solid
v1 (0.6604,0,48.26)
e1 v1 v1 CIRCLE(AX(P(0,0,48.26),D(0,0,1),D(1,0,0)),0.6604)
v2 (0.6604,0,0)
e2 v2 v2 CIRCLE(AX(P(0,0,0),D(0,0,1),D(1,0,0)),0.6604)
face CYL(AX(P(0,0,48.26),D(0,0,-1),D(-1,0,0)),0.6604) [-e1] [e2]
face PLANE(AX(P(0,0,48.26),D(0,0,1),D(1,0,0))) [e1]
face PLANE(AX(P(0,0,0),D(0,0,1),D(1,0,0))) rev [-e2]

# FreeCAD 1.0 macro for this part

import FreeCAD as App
import Part
import Sketcher

V = App.Vector
Q = App.Units.Quantity

doc = App.newDocument("Part")
params = doc.addObject("Spreadsheet::Sheet", "Params")
for row, (alias, value) in enumerate([
    ("sketch1_diameter", "0.052 in"),
    ("pad1_length", "1.9 in"),
], start=1):
    params.set(f"A{row}", alias)
    params.set(f"B{row}", "=" + value)
    params.setAlias(f"B{row}", alias)

body = doc.addObject("PartDesign::Body", "Body")

sketch1 = doc.addObject("Sketcher::SketchObject", "Sketch")
body.addObject(sketch1)
sketch1.AttachmentSupport = (doc.XY_Plane, [""])
sketch1.MapMode = "FlatFace"
sketch1.addGeometry(Part.Circle(V(0, 0, 0), V(0, 0, 1), 0.7), False)
sketch1.addConstraint(Sketcher.Constraint("Coincident", 0, 3, -1, 1))
sketch1.addConstraint(Sketcher.Constraint("Diameter", 0, Q("0.052 in")))
sketch1.setExpression("Constraints[1]", "Params.sketch1_diameter")
pad1 = doc.addObject("PartDesign::Pad", "Pad")
body.addObject(pad1)
pad1.Profile = sketch1
pad1.setExpression("Length", "Params.pad1_length")

doc.recompute()
